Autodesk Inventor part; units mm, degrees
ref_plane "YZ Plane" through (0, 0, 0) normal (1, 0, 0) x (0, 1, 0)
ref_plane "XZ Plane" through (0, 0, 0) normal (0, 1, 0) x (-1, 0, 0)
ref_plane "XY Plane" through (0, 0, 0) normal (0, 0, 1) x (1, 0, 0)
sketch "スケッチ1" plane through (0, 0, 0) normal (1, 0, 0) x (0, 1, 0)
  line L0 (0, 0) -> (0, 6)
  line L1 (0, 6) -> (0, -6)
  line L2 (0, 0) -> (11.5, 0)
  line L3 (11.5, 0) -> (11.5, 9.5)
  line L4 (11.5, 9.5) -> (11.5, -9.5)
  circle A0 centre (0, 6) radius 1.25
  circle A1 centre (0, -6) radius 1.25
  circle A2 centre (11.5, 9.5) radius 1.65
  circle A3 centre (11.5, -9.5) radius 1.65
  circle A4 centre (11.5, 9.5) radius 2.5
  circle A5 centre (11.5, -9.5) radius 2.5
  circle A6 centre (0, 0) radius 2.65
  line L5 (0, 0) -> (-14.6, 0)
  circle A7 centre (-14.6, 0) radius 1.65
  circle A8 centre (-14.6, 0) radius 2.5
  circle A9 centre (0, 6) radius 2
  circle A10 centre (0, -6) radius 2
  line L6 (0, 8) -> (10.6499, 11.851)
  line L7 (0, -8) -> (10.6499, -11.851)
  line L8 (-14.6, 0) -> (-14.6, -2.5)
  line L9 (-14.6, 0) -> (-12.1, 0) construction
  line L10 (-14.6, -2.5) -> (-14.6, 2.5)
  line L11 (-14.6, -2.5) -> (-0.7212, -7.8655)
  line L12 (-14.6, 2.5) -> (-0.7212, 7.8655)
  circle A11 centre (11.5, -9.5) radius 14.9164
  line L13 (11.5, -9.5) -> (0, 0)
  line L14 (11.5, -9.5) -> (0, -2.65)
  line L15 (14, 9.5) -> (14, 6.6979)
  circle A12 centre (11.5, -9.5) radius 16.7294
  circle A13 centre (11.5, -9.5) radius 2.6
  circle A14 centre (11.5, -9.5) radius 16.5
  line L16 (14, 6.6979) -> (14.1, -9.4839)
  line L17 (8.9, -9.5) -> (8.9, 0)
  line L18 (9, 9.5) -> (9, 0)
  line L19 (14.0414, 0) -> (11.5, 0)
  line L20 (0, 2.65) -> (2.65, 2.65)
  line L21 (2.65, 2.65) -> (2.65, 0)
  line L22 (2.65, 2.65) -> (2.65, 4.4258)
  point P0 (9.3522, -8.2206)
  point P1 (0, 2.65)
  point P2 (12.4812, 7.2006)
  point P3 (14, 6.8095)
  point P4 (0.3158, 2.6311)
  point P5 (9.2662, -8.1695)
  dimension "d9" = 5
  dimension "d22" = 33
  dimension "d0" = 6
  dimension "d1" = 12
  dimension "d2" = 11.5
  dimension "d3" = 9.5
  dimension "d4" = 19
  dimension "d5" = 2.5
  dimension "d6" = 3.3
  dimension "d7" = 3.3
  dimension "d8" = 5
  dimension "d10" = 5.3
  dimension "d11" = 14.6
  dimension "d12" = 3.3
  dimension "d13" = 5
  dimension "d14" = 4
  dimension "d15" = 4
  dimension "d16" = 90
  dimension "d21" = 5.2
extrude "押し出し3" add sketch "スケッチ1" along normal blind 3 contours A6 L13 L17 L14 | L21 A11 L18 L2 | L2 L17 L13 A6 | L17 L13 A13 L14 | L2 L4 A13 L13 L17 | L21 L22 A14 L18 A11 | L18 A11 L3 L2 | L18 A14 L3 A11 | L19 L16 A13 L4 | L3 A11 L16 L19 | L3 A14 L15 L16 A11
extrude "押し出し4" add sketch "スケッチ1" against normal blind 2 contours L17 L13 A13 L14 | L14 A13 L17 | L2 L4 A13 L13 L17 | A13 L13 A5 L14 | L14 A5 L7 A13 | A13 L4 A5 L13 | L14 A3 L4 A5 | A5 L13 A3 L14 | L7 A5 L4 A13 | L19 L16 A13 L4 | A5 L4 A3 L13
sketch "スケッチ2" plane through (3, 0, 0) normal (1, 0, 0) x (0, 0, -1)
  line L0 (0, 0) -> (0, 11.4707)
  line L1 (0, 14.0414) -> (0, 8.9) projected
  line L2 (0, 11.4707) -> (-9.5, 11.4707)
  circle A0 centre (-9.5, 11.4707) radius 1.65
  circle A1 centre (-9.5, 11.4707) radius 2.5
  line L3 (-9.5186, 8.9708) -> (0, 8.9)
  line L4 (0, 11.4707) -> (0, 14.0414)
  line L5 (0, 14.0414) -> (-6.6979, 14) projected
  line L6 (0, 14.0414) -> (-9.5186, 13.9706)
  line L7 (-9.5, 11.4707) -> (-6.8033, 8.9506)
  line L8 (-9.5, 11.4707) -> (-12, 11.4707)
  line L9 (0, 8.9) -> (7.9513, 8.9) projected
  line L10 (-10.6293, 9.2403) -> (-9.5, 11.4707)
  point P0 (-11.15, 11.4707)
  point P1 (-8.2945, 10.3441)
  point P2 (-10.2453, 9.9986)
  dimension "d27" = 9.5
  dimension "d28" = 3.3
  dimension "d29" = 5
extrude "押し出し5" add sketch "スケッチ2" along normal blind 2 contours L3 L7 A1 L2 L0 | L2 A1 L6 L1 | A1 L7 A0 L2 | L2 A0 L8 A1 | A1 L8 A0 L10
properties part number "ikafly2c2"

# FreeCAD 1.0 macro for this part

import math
import FreeCAD as App
import Part
import Sketcher
Q = App.Units.Quantity

doc = App.newDocument("Part")
body = doc.addObject("PartDesign::Body", "Body")

# Sketch on YZ plane
sketch1 = doc.addObject("Sketcher::SketchObject", "Sketch")
body.addObject(sketch1)
sketch1.AttachmentSupport = (doc.YZ_Plane, [""])
sketch1.MapMode = "FlatFace"
sketch1.addGeometry(Part.LineSegment(App.Vector(0, -2.65, 0), App.Vector(9.27, -8.17, 0)), False)
sketch1.addGeometry(Part.ArcOfCircle(Part.Circle(App.Vector(11.5, -9.5, 0), App.Vector(0, 0, 1), 2.6), math.radians(0), math.radians(149)), False)
sketch1.addGeometry(Part.LineSegment(App.Vector(14.1, -9.48, 0), App.Vector(14, 6.7, 0)), False)
sketch1.addGeometry(Part.LineSegment(App.Vector(14, 6.7, 0), App.Vector(14, 6.81, 0)), False)
sketch1.addGeometry(Part.ArcOfCircle(Part.Circle(App.Vector(11.5, -9.5, 0), App.Vector(0, 0, 1), 16.5), math.radians(81), math.radians(122)), False)
sketch1.addGeometry(Part.LineSegment(App.Vector(2.65, 4.43, 0), App.Vector(2.65, 0, 0)), False)
sketch1.addGeometry(Part.ArcOfCircle(Part.Circle(App.Vector(0, 0, 0), App.Vector(0, 0, 1), 2.65), math.radians(-90), math.radians(0)), False)
sketch1.addConstraint(Sketcher.Constraint("Coincident", 0, 2, 1, 2))
sketch1.addConstraint(Sketcher.Constraint("Tangent", 1, 1, 2, 1))
sketch1.addConstraint(Sketcher.Constraint("Coincident", 2, 2, 3, 1))
sketch1.addConstraint(Sketcher.Constraint("Coincident", 3, 2, 4, 1))
sketch1.addConstraint(Sketcher.Constraint("Coincident", 4, 2, 5, 1))
sketch1.addConstraint(Sketcher.Constraint("Tangent", 5, 2, 6, 2))
sketch1.addConstraint(Sketcher.Constraint("Coincident", 6, 1, 0, 1))
sketch1.addConstraint(Sketcher.Constraint("Vertical", 3))
sketch1.addConstraint(Sketcher.Constraint("Vertical", 5))
sketch1.addConstraint(Sketcher.Constraint("Coincident", 6, 3, -1, 1))
sketch1.addConstraint(Sketcher.Constraint("Coincident", 4, 3, 1, 3))
sketch1.addConstraint(Sketcher.Constraint("PointOnObject", 6, 1, -2))
sketch1.addConstraint(Sketcher.Constraint("Radius", 1, Q("2.6 mm")))
sketch1.addConstraint(Sketcher.Constraint("Radius", 4, Q("16.5 mm")))
sketch1.addConstraint(Sketcher.Constraint("Radius", 6, Q("2.65 mm")))
sketch1.addConstraint(Sketcher.Constraint("DistanceX", -1, 1, 1, 3, Q("11.5 mm")))
sketch1.addConstraint(Sketcher.Constraint("DistanceY", 1, 3, -1, 1, Q("9.5 mm")))
sketch1.addConstraint(Sketcher.Constraint("DistanceX", 1, 3, 2, 2, Q("2.5 mm")))
sketch1.addConstraint(Sketcher.Constraint("Angle", 0, Q("-30.7802 deg")))
sketch1.addConstraint(Sketcher.Constraint("Distance", 2, Q("16.182 mm")))
pad1 = doc.addObject("PartDesign::Pad", "Pad")
body.addObject(pad1)
pad1.Profile = sketch1
pad1.Length = 3

# Sketch on YZ plane
sketch2 = doc.addObject("Sketcher::SketchObject", "Sketch001")
body.addObject(sketch2)
sketch2.AttachmentSupport = (doc.YZ_Plane, [""])
sketch2.MapMode = "FlatFace"
sketch2.addGeometry(Part.ArcOfCircle(Part.Circle(App.Vector(11.5, -9.5, 0), App.Vector(0, 0, 1), 2.6), math.radians(180), math.radians(360)), False)
sketch2.addGeometry(Part.LineSegment(App.Vector(14.1, -9.5, 0), App.Vector(14, 0, 0)), False)
sketch2.addGeometry(Part.LineSegment(App.Vector(14, 0, 0), App.Vector(8.9, 0, 0)), False)
sketch2.addGeometry(Part.LineSegment(App.Vector(8.9, 0, 0), App.Vector(8.9, -9.5, 0)), False)
sketch2.addGeometry(Part.Circle(App.Vector(11.5, -9.5, 0), App.Vector(0, 0, 1), 1.6), False)
sketch2.addConstraint(Sketcher.Constraint("Tangent", 0, 2, 1, 1))
sketch2.addConstraint(Sketcher.Constraint("Coincident", 1, 2, 2, 1))
sketch2.addConstraint(Sketcher.Constraint("Coincident", 2, 2, 3, 1))
sketch2.addConstraint(Sketcher.Constraint("Tangent", 3, 2, 0, 1))
sketch2.addConstraint(Sketcher.Constraint("Horizontal", 2))
sketch2.addConstraint(Sketcher.Constraint("Vertical", 3))
sketch2.addConstraint(Sketcher.Constraint("Coincident", 4, 3, 0, 3))
sketch2.addConstraint(Sketcher.Constraint("PointOnObject", 1, 2, -1))
sketch2.addConstraint(Sketcher.Constraint("Diameter", 4, Q("3.3 mm")))
sketch2.addConstraint(Sketcher.Constraint("Radius", 0, Q("2.6 mm")))
sketch2.addConstraint(Sketcher.Constraint("DistanceY", 3, 2, 3, 1, Q("9.5 mm")))
sketch2.addConstraint(Sketcher.Constraint("DistanceX", -1, 1, 0, 3, Q("11.5 mm")))
sketch2.addConstraint(Sketcher.Constraint("Distance", 1, Q("9.484 mm")))
pad2 = doc.addObject("PartDesign::Pad", "Pad001")
body.addObject(pad2)
pad2.Profile = sketch2
pad2.Length = 2
pad2.Reversed = True

# Sketch on YZ plane
sketch3 = doc.addObject("Sketcher::SketchObject", "Sketch002")
body.addObject(sketch3)
sketch3.AttachmentSupport = (doc.YZ_Plane, [""])
sketch3.MapMode = "FlatFace"
sketch3.AttachmentOffset = App.Placement(App.Vector(0, 0, 3), App.Rotation())
sketch3.addGeometry(Part.LineSegment(App.Vector(9, 6.8, 0), App.Vector(8.9, 0, 0)), False)
sketch3.addGeometry(Part.LineSegment(App.Vector(8.9, 0, 0), App.Vector(14, 0, 0)), False)
sketch3.addGeometry(Part.LineSegment(App.Vector(14, 0, 0), App.Vector(14, 9.5, 0)), False)
sketch3.addGeometry(Part.ArcOfCircle(Part.Circle(App.Vector(11.5, 9.5, 0), App.Vector(0, 0, 1), 2.5), math.radians(0), math.radians(153)), False)
sketch3.addGeometry(Part.LineSegment(App.Vector(9.2, 10.6, 0), App.Vector(10, 10.2, 0)), False)
sketch3.addGeometry(Part.ArcOfCircle(Part.Circle(App.Vector(11.5, 9.5, 0), App.Vector(0, 0, 1), 1.6), math.radians(-133), math.radians(153)), False)
sketch3.addGeometry(Part.LineSegment(App.Vector(10.3, 8.3, 0), App.Vector(9, 6.8, 0)), False)
sketch3.addConstraint(Sketcher.Constraint("Coincident", 0, 2, 1, 1))
sketch3.addConstraint(Sketcher.Constraint("Coincident", 1, 2, 2, 1))
sketch3.addConstraint(Sketcher.Constraint("Tangent", 2, 2, 3, 1))
sketch3.addConstraint(Sketcher.Constraint("Coincident", 3, 2, 4, 1))
sketch3.addConstraint(Sketcher.Constraint("Coincident", 4, 2, 5, 2))
sketch3.addConstraint(Sketcher.Constraint("Coincident", 5, 1, 6, 1))
sketch3.addConstraint(Sketcher.Constraint("Coincident", 6, 2, 0, 1))
sketch3.addConstraint(Sketcher.Constraint("Horizontal", 1))
sketch3.addConstraint(Sketcher.Constraint("Coincident", 5, 3, 3, 3))
sketch3.addConstraint(Sketcher.Constraint("PointOnObject", 0, 2, -1))
sketch3.addConstraint(Sketcher.Constraint("Radius", 3, Q("2.5 mm")))
sketch3.addConstraint(Sketcher.Constraint("Radius", 5, Q("1.65 mm")))
sketch3.addConstraint(Sketcher.Constraint("DistanceY", -1, 1, 3, 3, Q("9.5 mm")))
sketch3.addConstraint(Sketcher.Constraint("DistanceX", -1, 1, 0, 2, Q("8.9 mm")))
sketch3.addConstraint(Sketcher.Constraint("Angle", 6, Q("-133.0612 deg")))
sketch3.addConstraint(Sketcher.Constraint("DistanceX", 6, 2, 3, 3, Q("2.52 mm")))
sketch3.addConstraint(Sketcher.Constraint("Distance", 6, Q("2.041 mm")))
sketch3.addConstraint(Sketcher.Constraint("DistanceX", 1, 1, 1, 2, Q("5.1414 mm")))
sketch3.addConstraint(Sketcher.Constraint("DistanceX", -1, 1, 5, 1, Q("10.344 mm")))
sketch3.addConstraint(Sketcher.Constraint("DistanceX", 3, 2, 1, 2, Q("4.801 mm")))
sketch3.addConstraint(Sketcher.Constraint("DistanceY", 4, 2, 3, 2, Q("0.384 mm")))
pad3 = doc.addObject("PartDesign::Pad", "Pad002")
body.addObject(pad3)
pad3.Profile = sketch3
pad3.Length = 2

doc.recompute()
